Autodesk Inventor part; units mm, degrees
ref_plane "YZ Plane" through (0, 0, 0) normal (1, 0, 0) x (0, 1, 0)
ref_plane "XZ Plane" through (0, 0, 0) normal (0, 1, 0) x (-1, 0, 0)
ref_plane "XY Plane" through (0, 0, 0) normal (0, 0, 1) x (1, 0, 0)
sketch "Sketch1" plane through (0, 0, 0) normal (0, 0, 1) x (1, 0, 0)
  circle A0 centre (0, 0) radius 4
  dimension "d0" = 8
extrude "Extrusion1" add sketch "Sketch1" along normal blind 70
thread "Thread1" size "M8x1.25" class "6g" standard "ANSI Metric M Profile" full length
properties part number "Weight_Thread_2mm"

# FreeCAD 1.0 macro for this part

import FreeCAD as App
import Part
import Sketcher

doc = App.newDocument("Part")
body = doc.addObject("PartDesign::Body", "Body")

# Sketch on XY plane
sketch1 = body.newObject("Sketcher::SketchObject", "Sketch")
sketch1.AttachmentSupport = (doc.getObject("XY_Plane"), [""])
sketch1.MapMode = "FlatFace"
sketch1.addGeometry(Part.Circle(App.Vector(0, 0, 0), App.Vector(0, 0, 1), 4), False)
sketch1.addConstraint(Sketcher.Constraint("Coincident", 0, 3, -1, 1))
sketch1.addConstraint(Sketcher.Constraint("Diameter", 0, 8.0))
pad1 = body.newObject("PartDesign::Pad", "Pad")
pad1.Profile = sketch1
pad1.Length = 70

doc.recompute()
